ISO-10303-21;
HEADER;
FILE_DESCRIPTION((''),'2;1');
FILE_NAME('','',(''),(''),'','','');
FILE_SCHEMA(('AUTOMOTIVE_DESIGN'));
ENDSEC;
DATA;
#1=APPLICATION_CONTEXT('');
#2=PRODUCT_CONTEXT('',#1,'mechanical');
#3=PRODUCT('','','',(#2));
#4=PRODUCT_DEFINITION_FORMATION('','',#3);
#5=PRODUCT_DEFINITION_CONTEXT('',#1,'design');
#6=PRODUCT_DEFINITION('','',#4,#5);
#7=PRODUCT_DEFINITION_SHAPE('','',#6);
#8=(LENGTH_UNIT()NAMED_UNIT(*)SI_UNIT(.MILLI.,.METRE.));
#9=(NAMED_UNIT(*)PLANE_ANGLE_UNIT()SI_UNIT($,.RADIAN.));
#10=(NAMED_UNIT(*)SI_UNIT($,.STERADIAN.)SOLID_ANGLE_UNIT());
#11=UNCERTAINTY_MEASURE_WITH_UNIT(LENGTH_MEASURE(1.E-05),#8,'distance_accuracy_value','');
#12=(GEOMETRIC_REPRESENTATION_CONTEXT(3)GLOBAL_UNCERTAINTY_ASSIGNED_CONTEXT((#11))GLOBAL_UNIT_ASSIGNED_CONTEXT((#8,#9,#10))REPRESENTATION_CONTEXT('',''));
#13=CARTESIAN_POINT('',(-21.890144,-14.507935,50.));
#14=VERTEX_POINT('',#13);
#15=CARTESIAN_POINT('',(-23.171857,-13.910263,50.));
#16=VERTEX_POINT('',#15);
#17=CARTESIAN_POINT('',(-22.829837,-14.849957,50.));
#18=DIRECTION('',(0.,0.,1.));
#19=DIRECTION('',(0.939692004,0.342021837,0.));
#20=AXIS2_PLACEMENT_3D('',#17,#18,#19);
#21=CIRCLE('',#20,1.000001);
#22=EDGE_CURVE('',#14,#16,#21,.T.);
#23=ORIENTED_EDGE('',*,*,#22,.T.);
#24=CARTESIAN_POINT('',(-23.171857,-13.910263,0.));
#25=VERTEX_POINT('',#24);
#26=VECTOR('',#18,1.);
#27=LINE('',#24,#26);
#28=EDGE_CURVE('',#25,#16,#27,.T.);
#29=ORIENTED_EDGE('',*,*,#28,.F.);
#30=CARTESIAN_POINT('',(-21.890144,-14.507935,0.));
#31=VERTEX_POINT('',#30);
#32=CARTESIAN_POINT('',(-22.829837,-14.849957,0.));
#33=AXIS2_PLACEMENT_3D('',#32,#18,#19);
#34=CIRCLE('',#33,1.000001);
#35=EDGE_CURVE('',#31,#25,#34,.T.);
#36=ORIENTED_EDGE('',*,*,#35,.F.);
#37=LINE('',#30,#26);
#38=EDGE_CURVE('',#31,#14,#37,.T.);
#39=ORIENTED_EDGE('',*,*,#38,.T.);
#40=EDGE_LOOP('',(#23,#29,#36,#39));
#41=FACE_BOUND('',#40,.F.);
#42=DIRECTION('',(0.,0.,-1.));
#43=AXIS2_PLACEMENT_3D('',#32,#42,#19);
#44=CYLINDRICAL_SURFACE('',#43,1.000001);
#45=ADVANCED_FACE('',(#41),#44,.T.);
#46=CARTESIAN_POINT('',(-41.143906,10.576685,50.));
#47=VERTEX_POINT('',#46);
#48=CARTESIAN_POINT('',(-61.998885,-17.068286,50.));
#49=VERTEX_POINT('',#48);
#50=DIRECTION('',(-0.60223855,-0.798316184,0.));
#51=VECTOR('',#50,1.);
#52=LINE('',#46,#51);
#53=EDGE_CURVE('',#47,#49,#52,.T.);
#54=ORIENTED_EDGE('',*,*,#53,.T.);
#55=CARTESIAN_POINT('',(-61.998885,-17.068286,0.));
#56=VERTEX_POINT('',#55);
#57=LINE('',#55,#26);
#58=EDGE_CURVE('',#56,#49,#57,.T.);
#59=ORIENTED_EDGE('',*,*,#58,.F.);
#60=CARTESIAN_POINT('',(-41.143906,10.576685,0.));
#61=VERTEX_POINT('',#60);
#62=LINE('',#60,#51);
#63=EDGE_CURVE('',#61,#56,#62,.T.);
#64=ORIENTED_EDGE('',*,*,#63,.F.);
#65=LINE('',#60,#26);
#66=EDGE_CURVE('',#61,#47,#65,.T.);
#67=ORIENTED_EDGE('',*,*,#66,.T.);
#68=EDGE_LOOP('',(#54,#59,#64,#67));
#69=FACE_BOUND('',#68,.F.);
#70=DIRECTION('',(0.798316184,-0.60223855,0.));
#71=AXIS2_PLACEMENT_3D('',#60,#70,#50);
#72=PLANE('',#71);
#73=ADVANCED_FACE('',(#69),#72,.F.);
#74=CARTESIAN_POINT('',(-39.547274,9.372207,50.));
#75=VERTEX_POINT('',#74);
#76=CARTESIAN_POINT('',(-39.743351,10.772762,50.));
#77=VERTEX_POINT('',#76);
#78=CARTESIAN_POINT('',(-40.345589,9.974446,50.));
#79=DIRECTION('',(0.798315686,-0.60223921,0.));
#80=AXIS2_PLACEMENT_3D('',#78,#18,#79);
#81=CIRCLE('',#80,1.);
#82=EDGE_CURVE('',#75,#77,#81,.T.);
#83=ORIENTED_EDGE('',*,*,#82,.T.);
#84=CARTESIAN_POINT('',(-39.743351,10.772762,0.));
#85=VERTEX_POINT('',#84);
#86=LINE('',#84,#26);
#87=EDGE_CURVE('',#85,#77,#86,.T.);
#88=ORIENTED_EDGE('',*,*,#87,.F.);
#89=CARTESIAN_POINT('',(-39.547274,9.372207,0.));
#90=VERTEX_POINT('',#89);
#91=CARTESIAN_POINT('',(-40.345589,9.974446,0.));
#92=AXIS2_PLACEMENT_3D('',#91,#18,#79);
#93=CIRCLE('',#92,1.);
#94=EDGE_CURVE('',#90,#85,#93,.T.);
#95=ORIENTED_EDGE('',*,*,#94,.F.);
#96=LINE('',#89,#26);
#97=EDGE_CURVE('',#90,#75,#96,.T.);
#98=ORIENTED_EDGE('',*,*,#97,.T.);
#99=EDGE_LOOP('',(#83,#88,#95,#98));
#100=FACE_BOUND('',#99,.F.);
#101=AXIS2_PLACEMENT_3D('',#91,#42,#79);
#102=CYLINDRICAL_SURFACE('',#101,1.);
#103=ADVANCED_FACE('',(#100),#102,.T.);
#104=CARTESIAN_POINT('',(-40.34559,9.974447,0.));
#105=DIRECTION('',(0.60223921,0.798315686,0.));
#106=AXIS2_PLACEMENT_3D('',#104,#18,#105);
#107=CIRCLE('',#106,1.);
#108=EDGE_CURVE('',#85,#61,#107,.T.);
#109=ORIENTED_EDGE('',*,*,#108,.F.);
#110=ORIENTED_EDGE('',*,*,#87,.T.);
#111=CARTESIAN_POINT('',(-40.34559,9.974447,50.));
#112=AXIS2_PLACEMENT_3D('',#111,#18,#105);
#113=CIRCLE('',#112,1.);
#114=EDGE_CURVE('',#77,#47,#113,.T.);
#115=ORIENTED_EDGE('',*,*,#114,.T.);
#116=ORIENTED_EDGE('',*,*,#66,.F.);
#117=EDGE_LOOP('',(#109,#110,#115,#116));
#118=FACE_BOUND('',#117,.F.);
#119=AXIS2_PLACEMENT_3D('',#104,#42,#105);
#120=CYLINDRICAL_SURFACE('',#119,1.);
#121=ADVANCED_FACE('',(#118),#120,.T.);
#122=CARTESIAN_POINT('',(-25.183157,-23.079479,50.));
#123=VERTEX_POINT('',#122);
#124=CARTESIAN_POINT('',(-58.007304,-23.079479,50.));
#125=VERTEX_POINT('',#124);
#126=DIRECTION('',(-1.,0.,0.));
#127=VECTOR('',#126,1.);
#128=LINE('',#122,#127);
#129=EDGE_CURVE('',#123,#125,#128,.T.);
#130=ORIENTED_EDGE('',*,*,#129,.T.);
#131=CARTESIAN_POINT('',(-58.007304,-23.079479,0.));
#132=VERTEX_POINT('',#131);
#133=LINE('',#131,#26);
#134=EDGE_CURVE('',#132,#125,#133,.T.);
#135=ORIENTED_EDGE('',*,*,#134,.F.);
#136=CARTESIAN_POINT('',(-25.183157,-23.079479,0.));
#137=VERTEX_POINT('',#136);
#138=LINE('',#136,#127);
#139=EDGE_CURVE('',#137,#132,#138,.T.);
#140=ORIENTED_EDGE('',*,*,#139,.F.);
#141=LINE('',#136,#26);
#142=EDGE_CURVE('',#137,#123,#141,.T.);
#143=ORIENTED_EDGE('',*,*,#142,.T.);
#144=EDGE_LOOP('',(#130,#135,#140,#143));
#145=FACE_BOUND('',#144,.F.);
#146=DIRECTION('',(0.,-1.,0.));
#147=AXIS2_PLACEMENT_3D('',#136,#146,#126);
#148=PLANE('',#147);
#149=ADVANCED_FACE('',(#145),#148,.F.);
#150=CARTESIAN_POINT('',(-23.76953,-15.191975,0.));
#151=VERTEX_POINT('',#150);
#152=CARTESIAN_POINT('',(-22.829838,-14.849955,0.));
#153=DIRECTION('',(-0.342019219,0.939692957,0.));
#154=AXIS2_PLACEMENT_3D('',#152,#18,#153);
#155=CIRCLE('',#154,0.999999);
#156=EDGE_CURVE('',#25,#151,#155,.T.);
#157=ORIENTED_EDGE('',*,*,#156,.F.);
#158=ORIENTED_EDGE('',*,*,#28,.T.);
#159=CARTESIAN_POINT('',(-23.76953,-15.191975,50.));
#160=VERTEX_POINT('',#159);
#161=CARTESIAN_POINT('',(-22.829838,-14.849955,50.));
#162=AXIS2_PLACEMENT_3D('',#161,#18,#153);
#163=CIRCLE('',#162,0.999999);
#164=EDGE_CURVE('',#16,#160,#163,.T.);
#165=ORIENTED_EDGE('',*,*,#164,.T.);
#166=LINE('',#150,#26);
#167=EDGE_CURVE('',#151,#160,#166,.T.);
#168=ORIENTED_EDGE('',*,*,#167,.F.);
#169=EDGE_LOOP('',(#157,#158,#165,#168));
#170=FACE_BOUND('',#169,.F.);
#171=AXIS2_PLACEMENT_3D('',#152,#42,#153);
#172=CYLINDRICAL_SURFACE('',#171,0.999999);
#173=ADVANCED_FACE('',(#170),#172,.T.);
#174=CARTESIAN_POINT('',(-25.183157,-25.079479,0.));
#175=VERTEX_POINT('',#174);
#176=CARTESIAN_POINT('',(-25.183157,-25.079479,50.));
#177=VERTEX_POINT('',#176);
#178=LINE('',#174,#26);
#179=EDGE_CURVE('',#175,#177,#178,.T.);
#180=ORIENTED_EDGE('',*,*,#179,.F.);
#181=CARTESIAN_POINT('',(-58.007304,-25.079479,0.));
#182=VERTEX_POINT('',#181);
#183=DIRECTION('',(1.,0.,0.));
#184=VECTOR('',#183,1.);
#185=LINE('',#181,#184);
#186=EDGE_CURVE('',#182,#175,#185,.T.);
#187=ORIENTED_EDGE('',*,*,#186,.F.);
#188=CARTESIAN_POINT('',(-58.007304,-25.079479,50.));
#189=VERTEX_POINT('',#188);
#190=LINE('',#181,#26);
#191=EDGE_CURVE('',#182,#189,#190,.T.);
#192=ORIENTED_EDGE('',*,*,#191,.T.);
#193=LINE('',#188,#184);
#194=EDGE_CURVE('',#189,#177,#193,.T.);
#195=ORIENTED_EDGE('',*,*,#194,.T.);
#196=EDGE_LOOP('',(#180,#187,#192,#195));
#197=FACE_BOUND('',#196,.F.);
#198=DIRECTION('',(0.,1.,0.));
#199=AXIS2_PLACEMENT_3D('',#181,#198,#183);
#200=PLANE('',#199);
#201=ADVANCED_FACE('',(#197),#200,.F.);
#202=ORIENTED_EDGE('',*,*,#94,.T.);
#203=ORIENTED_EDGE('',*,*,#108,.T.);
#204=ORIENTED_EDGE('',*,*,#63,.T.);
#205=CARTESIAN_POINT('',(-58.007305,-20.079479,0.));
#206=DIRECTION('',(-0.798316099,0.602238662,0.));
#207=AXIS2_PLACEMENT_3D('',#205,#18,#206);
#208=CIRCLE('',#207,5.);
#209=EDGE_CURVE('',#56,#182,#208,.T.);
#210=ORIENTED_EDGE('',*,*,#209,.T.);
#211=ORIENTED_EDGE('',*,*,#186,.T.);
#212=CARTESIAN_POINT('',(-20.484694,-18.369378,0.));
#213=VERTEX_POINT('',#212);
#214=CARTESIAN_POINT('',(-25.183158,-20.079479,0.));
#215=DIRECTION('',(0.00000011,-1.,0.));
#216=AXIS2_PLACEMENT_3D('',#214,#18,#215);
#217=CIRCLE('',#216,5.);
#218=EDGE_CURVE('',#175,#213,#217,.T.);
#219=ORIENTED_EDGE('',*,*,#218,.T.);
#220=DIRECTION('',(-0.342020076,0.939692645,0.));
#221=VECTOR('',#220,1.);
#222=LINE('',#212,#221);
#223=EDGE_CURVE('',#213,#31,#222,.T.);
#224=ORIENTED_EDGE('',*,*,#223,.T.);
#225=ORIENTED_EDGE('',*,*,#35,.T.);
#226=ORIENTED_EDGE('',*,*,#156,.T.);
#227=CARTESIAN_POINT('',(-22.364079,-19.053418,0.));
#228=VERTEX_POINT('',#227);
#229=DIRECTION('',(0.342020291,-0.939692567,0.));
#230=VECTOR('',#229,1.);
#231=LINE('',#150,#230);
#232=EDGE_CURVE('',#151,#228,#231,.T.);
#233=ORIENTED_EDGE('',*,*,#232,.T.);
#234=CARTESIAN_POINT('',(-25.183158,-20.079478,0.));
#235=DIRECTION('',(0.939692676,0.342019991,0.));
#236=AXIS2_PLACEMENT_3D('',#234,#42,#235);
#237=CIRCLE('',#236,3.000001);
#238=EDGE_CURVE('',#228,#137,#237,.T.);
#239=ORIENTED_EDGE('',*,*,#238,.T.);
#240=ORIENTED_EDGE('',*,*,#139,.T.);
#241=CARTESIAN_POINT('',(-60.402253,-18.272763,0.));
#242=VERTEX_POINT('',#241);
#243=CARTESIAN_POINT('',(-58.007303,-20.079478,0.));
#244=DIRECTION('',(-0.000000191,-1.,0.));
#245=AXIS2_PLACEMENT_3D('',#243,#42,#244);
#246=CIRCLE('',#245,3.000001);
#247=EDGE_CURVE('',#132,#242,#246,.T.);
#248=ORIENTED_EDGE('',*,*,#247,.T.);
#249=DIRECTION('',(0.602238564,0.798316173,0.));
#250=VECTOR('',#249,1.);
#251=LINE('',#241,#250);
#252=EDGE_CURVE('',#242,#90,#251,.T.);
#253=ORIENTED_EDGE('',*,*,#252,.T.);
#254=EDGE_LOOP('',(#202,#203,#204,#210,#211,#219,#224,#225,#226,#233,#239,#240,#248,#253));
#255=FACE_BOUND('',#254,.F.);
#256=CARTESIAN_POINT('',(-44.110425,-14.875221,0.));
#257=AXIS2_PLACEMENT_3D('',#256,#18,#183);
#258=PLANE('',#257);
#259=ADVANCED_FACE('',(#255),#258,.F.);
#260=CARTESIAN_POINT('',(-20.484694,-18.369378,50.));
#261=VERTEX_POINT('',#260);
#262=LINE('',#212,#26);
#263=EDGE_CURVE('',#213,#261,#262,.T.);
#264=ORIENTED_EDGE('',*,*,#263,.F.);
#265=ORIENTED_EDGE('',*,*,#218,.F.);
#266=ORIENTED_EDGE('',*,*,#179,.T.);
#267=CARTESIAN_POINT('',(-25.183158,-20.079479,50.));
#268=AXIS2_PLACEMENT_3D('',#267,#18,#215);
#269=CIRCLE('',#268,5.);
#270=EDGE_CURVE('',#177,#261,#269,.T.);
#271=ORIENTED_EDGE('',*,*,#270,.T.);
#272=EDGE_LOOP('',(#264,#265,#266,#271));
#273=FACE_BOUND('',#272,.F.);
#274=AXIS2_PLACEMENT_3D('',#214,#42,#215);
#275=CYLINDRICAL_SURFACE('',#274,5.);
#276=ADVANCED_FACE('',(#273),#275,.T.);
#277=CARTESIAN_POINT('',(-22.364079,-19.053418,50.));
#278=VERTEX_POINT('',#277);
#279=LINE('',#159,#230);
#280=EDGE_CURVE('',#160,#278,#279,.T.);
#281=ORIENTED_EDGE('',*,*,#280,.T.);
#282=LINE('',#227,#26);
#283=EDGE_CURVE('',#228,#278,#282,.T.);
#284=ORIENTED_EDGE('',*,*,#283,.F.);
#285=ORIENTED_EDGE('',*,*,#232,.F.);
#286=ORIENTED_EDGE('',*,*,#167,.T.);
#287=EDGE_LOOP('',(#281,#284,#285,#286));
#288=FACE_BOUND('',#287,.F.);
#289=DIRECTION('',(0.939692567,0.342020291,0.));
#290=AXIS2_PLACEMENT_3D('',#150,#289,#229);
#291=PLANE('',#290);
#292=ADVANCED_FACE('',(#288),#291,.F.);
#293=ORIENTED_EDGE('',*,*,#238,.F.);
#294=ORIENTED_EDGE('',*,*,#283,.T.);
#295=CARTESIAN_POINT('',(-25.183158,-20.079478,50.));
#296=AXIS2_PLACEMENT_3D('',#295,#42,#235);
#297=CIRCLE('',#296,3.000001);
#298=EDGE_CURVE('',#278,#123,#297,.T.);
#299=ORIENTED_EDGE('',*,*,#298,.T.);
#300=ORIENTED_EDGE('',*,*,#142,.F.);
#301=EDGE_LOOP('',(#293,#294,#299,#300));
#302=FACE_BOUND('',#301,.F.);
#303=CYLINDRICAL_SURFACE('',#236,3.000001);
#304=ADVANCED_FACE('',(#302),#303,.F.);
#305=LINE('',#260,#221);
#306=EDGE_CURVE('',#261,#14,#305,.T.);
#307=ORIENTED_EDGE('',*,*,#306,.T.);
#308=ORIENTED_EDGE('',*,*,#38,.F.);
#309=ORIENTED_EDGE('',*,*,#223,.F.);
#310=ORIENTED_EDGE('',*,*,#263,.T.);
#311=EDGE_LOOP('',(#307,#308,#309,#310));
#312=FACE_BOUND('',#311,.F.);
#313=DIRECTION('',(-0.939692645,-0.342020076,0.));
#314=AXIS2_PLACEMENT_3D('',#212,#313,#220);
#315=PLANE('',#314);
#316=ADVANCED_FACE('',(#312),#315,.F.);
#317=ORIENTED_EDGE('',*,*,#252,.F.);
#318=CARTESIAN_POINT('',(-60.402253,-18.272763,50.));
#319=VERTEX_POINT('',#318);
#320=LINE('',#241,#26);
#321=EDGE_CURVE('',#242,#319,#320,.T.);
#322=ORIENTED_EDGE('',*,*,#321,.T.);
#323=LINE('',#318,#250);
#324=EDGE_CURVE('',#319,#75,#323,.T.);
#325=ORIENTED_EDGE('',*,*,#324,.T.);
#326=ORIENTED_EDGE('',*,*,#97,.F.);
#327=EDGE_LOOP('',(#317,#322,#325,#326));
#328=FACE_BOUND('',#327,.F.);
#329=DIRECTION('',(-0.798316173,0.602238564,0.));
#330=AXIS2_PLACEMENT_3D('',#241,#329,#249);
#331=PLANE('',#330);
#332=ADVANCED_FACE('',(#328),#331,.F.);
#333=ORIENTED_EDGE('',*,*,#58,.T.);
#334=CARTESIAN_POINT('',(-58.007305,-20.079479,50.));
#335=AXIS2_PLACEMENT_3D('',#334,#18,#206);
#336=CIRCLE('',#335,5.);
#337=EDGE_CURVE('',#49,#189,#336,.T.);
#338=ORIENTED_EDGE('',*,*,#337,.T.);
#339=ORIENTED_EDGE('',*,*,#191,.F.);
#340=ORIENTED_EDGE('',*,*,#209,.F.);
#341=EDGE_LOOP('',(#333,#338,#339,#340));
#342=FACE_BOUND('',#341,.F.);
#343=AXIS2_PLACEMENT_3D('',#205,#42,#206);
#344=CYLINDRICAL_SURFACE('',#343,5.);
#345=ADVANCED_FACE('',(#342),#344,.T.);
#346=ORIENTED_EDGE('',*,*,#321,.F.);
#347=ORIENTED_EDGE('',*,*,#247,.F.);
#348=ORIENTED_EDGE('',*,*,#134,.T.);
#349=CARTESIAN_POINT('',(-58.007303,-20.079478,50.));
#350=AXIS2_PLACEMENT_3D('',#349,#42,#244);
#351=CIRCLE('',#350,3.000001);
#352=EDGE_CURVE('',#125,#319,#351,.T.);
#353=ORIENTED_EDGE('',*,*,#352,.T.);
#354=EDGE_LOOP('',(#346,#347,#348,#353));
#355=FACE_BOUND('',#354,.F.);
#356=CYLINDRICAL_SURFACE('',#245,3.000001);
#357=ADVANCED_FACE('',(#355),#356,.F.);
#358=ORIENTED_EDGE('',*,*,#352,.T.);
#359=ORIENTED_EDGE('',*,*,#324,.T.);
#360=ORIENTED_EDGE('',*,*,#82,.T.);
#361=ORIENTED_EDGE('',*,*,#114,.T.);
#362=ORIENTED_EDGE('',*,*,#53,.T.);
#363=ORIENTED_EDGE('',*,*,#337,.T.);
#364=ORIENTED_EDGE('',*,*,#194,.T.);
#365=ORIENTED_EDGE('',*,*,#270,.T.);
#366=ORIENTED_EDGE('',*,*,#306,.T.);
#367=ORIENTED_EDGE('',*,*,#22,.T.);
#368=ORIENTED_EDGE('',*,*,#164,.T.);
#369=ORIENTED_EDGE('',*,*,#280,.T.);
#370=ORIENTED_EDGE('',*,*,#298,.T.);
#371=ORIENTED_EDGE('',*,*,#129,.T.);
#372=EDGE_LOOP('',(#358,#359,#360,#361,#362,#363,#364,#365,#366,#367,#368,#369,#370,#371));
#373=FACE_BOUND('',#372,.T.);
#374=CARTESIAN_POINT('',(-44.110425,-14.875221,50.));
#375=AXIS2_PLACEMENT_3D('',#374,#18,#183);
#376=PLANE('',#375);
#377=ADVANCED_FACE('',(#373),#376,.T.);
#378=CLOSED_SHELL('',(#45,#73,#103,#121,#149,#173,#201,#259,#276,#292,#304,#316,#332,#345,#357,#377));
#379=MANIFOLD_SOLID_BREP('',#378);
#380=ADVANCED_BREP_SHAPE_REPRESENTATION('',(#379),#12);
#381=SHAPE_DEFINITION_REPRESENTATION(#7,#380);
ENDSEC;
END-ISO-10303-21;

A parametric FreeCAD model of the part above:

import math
import FreeCAD as App
import Part
import Sketcher

V = App.Vector
Q = App.Units.Quantity

doc = App.newDocument("Part")
body = doc.addObject("PartDesign::Body", "Body")

# Sketch on XY plane
sketch1 = body.newObject("Sketcher::SketchObject", "Sketch")
sketch1.AttachmentSupport = (doc.getObject("XY_Plane"), [""])
sketch1.MapMode = "FlatFace"
sketch1.addGeometry([
    Part.LineSegment(V(-20.484694, -18.369378, 0), V(-21.890144, -14.507935, 0)),  # 0
    Part.ArcOfCircle(Part.Circle(V(-22.829837, -14.849957, 0), V(0, 0, 1), 1.000001), math.radians(20.000103), math.radians(109.99994)),  # 1
    Part.ArcOfCircle(Part.Circle(V(-22.829838, -14.849955, 0), V(0, 0, 1), 0.999999), math.radians(109.999944), math.radians(199.999992)),  # 2
    Part.LineSegment(V(-23.76953, -15.191975, 0), V(-22.364079, -19.053418, 0)),  # 3
    Part.ArcOfCircle(Part.Circle(V(-25.183158, -20.079478, 0), V(0, 0, 1), 3.000001), math.radians(-89.999986), math.radians(19.999991)),  # 4
    Part.LineSegment(V(-25.183157, -23.079479, 0), V(-58.007304, -23.079479, 0)),  # 5
    Part.ArcOfCircle(Part.Circle(V(-58.007303, -20.079478, 0), V(0, 0, 1), 3.000001), math.radians(142.969625), math.radians(269.999989)),  # 6
    Part.LineSegment(V(-60.402253, -18.272763, 0), V(-39.547274, 9.372207, 0)),  # 7
    Part.ArcOfCircle(Part.Circle(V(-40.34559, 9.974446, 0), V(0, 0, 1), 1), math.radians(-37.030438), math.radians(52.969603)),  # 8
    Part.ArcOfCircle(Part.Circle(V(-40.34559, 9.974447, 0), V(0, 0, 1), 1), math.radians(52.969562), math.radians(142.969603)),  # 9
    Part.LineSegment(V(-41.143906, 10.576685, 0), V(-61.998885, -17.068286, 0)),  # 10
    Part.ArcOfCircle(Part.Circle(V(-58.007305, -20.079479, 0), V(0, 0, 1), 5), math.radians(142.969601), math.radians(270.000008)),  # 11
    Part.LineSegment(V(-58.007304, -25.079479, 0), V(-25.183157, -25.079479, 0)),  # 12
    Part.ArcOfCircle(Part.Circle(V(-25.183158, -20.079479, 0), V(0, 0, 1), 5), math.radians(-89.999994), math.radians(19.999997)),  # 13
], False)
sketch1.addConstraint([
    Sketcher.Constraint("Tangent", 0, 2, 1, 1),
    Sketcher.Constraint("Tangent", 1, 2, 2, 1),
    Sketcher.Constraint("Tangent", 2, 2, 3, 1),
    Sketcher.Constraint("Tangent", 3, 2, 4, 2),
    Sketcher.Constraint("Tangent", 4, 1, 5, 1),
    Sketcher.Constraint("Tangent", 5, 2, 6, 2),
    Sketcher.Constraint("Tangent", 6, 1, 7, 1),
    Sketcher.Constraint("Tangent", 7, 2, 8, 1),
    Sketcher.Constraint("Tangent", 8, 2, 9, 1),
    Sketcher.Constraint("Tangent", 9, 2, 10, 1),
    Sketcher.Constraint("Tangent", 10, 2, 11, 1),
    Sketcher.Constraint("Tangent", 11, 2, 12, 1),
    Sketcher.Constraint("Tangent", 12, 2, 13, 1),
    Sketcher.Constraint("Tangent", 13, 2, 0, 1),
    Sketcher.Constraint("Horizontal", 5),
    Sketcher.Constraint("Horizontal", 12),
    Sketcher.Constraint("Coincident", 11, 3, 6, 3),
    Sketcher.Constraint("Coincident", 13, 3, 4, 3),
    Sketcher.Constraint("Equal", 4, 6),
    Sketcher.Constraint("Equal", 2, 8),
    Sketcher.Constraint("Equal", 8, 9),
    Sketcher.Constraint("Parallel", 0, 3),
    Sketcher.Constraint("Parallel", 7, 10),
    Sketcher.Constraint("Radius", 1, Q("1.000001 mm")),
    Sketcher.Constraint("Radius", 4, Q("3.000001 mm")),
    Sketcher.Constraint("Angle", 0, Q("109.999996 deg")),
    Sketcher.Constraint("Distance", 7, Q("34.629099 mm")),
    Sketcher.Constraint("DistanceY", 2, 3, 8, 3, Q("24.824401 mm")),
    Sketcher.Constraint("DistanceX", 4, 3, 1, 2, Q("2.011301 mm")),
    Sketcher.Constraint("Distance", 0, Q("4.109262 mm")),
    Sketcher.Constraint("DistanceX", 5, 2, 5, 1, Q("32.824147 mm")),
    Sketcher.Constraint("DistanceX", 2, 3, -1, 1, Q("22.829838 mm")),
    Sketcher.Constraint("DistanceY", 4, 3, -1, 1, Q("20.079478 mm")),
    Sketcher.Constraint("DistanceX", 8, 2, -1, 1, Q("39.743351 mm")),
])
pad1 = body.newObject("PartDesign::Pad", "Pad")
pad1.Profile = sketch1
pad1.Length = 50

doc.recompute()
